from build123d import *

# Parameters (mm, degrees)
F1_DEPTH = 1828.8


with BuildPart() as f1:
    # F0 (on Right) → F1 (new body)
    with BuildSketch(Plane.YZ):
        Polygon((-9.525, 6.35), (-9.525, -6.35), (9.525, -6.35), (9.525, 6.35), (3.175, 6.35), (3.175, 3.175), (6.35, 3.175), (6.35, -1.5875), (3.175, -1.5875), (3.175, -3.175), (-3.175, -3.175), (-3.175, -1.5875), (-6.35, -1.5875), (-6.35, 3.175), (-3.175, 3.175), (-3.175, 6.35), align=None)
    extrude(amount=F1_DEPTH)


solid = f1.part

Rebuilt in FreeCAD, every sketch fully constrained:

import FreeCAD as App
import Part
import Sketcher
Q = App.Units.Quantity


def add_polygon(sketch, points):
    """Adds a closed chain of lines whose ends are joined by coincident constraints."""
    first, n = sketch.GeometryCount, len(points)
    for a, b in zip(points, points[1:] + points[:1]):
        sketch.addGeometry(Part.LineSegment(App.Vector(*a, 0), App.Vector(*b, 0)), False)
    for i in range(n):
        sketch.addConstraint(Sketcher.Constraint("Coincident", first + i, 2, first + (i + 1) % n, 1))

doc = App.newDocument("Part")
body = doc.addObject("PartDesign::Body", "Body")

# Sketch on YZ plane
sketch1 = body.newObject("Sketcher::SketchObject", "Sketch")
sketch1.AttachmentSupport = (doc.getObject("YZ_Plane"), [""])
sketch1.MapMode = "FlatFace"
add_polygon(sketch1, [(-9.5, 6.3), (-9.5, -6.3), (9.5, -6.3), (9.5, 6.3), (3.2, 6.3), (3.2, 3.2), (6.3, 3.2), (6.3, -1.6), (3.2, -1.6), (3.2, -3.2), (-3.2, -3.2), (-3.2, -1.6), (-6.3, -1.6), (-6.3, 3.2), (-3.2, 3.2), (-3.2, 6.3)])  # lines 0-15
sketch1.addConstraint([
    Sketcher.Constraint("Vertical", 0),
    Sketcher.Constraint("Horizontal", 1),
    Sketcher.Constraint("Vertical", 2),
    Sketcher.Constraint("Horizontal", 3),
    Sketcher.Constraint("Vertical", 4),
    Sketcher.Constraint("Horizontal", 5),
    Sketcher.Constraint("Vertical", 6),
    Sketcher.Constraint("Horizontal", 7),
    Sketcher.Constraint("Vertical", 8),
    Sketcher.Constraint("Horizontal", 9),
    Sketcher.Constraint("Vertical", 10),
    Sketcher.Constraint("Horizontal", 11),
    Sketcher.Constraint("Vertical", 12),
    Sketcher.Constraint("Horizontal", 13),
    Sketcher.Constraint("Vertical", 14),
    Sketcher.Constraint("Horizontal", 15),
    Sketcher.Constraint("Symmetric", 0, 2, 2, 2, -1, 1),
    Sketcher.Constraint("Symmetric", 4, 2, 9, 2, -1, 1),
    Sketcher.Constraint("Symmetric", 8, 2, 13, 2, -1, 1),
    Sketcher.Constraint("Symmetric", 7, 2, 10, 2, -2),
    Sketcher.Constraint("Horizontal", 3, 2, 14, 2),
    Sketcher.Constraint("Equal", 3, 9),
    Sketcher.Constraint("Equal", 7, 11),
    Sketcher.Constraint("Equal", 13, 4),
    Sketcher.Constraint("DistanceY", 0, 2, 0, 1, Q("0.5 in")),
    Sketcher.Constraint("DistanceX", 1, 1, 1, 2, Q("0.75 in")),
    Sketcher.Constraint("DistanceX", 5, 1, 5, 2, Q("0.125 in")),
    Sketcher.Constraint("DistanceY", 6, 2, 6, 1, Q("0.1875 in")),
])
pad1 = body.newObject("PartDesign::Pad", "Pad")
pad1.Profile = sketch1
pad1.Length = Q("72 in")

doc.recompute()
